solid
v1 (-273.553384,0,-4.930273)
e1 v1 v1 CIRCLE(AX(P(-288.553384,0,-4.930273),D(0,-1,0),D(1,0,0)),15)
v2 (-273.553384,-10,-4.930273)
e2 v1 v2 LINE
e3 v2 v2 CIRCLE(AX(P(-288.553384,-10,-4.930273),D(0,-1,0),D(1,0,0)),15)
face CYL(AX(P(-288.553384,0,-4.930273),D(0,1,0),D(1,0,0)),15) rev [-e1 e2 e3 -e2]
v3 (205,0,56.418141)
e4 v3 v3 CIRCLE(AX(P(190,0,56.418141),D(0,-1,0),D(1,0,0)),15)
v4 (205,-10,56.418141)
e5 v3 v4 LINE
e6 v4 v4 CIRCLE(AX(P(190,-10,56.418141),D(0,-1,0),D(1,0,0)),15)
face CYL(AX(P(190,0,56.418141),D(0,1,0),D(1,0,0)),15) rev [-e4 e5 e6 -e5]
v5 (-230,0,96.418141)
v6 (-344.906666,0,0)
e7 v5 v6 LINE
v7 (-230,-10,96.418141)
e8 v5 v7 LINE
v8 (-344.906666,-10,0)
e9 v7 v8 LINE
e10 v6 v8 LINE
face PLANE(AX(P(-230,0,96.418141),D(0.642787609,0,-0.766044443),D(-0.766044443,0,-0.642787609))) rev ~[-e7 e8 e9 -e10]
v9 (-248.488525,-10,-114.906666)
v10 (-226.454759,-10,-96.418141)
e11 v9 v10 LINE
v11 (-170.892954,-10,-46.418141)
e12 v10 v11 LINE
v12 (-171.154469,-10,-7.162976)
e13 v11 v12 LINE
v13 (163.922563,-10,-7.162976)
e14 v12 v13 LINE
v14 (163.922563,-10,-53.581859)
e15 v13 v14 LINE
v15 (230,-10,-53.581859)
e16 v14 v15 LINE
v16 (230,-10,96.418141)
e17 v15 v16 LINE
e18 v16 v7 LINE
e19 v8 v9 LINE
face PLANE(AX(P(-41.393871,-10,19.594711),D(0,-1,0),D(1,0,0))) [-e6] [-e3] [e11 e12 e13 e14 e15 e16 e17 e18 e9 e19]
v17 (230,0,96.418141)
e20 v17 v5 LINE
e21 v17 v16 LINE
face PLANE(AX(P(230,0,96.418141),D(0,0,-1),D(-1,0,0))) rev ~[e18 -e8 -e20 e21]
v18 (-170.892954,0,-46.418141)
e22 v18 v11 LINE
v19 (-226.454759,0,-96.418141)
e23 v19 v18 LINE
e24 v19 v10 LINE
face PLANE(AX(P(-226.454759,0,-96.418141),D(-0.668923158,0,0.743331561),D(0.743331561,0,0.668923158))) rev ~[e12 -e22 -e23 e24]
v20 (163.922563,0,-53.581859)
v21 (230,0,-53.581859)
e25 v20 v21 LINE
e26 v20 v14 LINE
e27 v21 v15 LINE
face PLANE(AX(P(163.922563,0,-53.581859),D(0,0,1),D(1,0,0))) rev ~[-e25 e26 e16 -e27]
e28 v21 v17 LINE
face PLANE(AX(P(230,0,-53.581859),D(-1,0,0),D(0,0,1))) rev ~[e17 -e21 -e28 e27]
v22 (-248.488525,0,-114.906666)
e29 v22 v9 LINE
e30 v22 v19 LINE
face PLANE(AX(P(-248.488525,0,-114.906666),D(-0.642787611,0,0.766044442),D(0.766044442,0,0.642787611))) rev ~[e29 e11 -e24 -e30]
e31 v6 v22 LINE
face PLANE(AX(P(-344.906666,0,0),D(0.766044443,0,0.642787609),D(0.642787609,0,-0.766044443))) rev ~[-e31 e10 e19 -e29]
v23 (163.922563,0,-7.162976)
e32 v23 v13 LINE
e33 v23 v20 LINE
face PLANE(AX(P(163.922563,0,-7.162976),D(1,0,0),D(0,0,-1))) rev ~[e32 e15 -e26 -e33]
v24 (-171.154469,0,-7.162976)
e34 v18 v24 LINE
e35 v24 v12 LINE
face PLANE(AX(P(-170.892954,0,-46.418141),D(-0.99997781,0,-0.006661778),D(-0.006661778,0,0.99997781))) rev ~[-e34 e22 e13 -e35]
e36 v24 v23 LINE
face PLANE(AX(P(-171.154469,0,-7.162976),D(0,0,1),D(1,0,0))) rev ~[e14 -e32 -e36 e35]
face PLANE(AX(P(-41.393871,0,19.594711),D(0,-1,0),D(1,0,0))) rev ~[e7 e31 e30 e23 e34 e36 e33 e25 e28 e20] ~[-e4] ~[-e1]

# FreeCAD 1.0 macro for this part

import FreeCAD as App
import Part
import Sketcher
from FreeCAD import Vector
Q = App.Units.Quantity


def add_polygon(sketch, points):
    """Adds a closed chain of lines whose ends are joined by coincident constraints."""
    first, n = sketch.GeometryCount, len(points)
    for a, b in zip(points, points[1:] + points[:1]):
        sketch.addGeometry(Part.LineSegment(App.Vector(*a, 0), App.Vector(*b, 0)), False)
    for i in range(n):
        sketch.addConstraint(Sketcher.Constraint("Coincident", first + i, 2, first + (i + 1) % n, 1))

doc = App.newDocument("Part")
body = doc.addObject("PartDesign::Body", "Body")

# Sketch on XZ plane
sketch1 = body.newObject("Sketcher::SketchObject", "Sketch")
sketch1.AttachmentSupport = (doc.getObject("XZ_Plane"), [""])
sketch1.MapMode = "FlatFace"
add_polygon(sketch1, [(230, -54), (230, 96), (-230, 96), (-345, 0), (-248, -115), (-226, -96), (-171, -46), (-171, -7), (164, -7), (164, -54)])  # lines 0-9
sketch1.addGeometry(Part.Circle(Vector(-289, -5, 0), Vector(0, 0, 1), 15), False)  # 10
sketch1.addGeometry(Part.Circle(Vector(190, 56, 0), Vector(0, 0, 1), 15), False)  # 11
sketch1.addConstraint([
    Sketcher.Constraint("Vertical", 0),
    Sketcher.Constraint("Horizontal", 1),
    Sketcher.Constraint("Horizontal", 7),
    Sketcher.Constraint("Vertical", 8),
    Sketcher.Constraint("Horizontal", 9),
    Sketcher.Constraint("Equal", 10, 11),
    Sketcher.Constraint("PointOnObject", 2, 2, -1),
    Sketcher.Constraint("Perpendicular", 2, 3),
    Sketcher.Constraint("Perpendicular", 3, 4),
    Sketcher.Constraint("Equal", 2, 3),
    Sketcher.Constraint("Diameter", 10, 30.0),
    Sketcher.Constraint("DistanceX", 1, 2, 1, 1, 460.0),
    Sketcher.Constraint("DistanceY", 0, 1, 0, 2, 150.0),
    Sketcher.Constraint("Angle", 2, Q("-140 deg")),
    Sketcher.Constraint("Distance", 2, 149.999999),
    Sketcher.Constraint("DistanceX", -1, 1, 11, 3, 190.0),
    Sketcher.Constraint("DistanceX", -1, 1, 0, 2, 230.0),
    Sketcher.Constraint("DistanceY", 11, 3, 0, 2, 40.0),
    Sketcher.Constraint("DistanceY", 4, 2, 5, 2, 50.0),
    Sketcher.Constraint("Distance", 5, 74.747001),
    Sketcher.Constraint("Distance", 4, 28.763039),
    Sketcher.Constraint("DistanceX", 7, 1, 7, 2, 335.077032),
    Sketcher.Constraint("DistanceX", 9, 1, 9, 2, 66.077437),
    Sketcher.Constraint("DistanceY", 8, 2, 8, 1, 46.418883),
    Sketcher.Constraint("DistanceX", 2, 2, 10, 3, 56.353282),
    Sketcher.Constraint("DistanceY", 4, 2, 10, 3, 91.487868),
])
pad1 = body.newObject("PartDesign::Pad", "Pad")
pad1.Profile = sketch1
pad1.Length = 10

doc.recompute()
